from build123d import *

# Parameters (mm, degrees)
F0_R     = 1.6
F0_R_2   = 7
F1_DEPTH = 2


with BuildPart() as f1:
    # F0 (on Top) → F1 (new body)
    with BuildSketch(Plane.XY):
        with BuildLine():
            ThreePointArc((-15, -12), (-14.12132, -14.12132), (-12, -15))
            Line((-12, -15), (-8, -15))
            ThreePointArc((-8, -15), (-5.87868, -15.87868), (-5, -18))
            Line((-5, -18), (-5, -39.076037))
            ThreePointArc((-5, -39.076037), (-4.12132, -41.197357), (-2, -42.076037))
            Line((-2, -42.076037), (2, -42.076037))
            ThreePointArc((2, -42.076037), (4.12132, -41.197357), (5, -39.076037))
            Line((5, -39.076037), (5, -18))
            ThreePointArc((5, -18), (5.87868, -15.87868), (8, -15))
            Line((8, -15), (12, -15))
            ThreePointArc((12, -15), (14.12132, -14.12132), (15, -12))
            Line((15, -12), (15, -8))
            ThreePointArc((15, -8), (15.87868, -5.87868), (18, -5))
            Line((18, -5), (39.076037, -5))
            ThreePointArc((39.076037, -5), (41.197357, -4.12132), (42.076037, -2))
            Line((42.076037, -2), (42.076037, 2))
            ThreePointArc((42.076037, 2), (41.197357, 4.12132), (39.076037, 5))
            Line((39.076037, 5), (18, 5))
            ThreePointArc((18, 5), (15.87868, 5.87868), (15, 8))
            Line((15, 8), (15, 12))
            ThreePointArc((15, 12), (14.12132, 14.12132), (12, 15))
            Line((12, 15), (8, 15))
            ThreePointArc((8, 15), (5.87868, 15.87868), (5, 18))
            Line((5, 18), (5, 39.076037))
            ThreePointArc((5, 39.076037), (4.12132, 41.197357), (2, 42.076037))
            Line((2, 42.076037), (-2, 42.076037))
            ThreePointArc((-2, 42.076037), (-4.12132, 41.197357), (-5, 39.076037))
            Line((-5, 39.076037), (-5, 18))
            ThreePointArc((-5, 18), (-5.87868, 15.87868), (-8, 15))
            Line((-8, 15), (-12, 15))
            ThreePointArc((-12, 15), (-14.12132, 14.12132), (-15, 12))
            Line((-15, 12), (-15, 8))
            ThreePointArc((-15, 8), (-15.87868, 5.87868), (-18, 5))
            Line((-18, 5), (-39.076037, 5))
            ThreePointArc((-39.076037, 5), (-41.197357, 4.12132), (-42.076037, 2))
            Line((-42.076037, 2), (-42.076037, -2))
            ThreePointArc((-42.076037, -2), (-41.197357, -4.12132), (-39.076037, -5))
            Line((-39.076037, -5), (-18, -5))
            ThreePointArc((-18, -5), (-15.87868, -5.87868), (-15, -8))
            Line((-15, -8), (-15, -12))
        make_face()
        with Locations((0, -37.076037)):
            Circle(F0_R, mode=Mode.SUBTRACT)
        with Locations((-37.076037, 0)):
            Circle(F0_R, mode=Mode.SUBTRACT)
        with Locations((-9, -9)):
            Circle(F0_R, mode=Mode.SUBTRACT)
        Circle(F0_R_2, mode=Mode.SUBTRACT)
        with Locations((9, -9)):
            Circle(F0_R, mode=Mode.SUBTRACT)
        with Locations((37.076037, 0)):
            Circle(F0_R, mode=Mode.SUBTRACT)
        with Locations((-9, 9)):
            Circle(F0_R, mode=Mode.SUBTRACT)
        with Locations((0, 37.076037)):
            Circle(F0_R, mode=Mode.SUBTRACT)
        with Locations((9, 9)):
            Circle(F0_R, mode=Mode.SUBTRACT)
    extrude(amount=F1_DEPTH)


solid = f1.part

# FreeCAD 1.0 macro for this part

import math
import FreeCAD as App
import Part
import Sketcher
from FreeCAD import Vector

doc = App.newDocument("Part")
body = doc.addObject("PartDesign::Body", "Body")

# Sketch on XY plane
sketch1 = body.newObject("Sketcher::SketchObject", "Sketch")
sketch1.AttachmentSupport = (doc.getObject("XY_Plane"), [""])
sketch1.MapMode = "FlatFace"
sketch1.addGeometry([
    Part.ArcOfCircle(Part.Circle(Vector(-12, -12, 0), Vector(0, 0, 1), 3), math.radians(-180), math.radians(-90)),  # 0
    Part.LineSegment(Vector(-12, -15, 0), Vector(-8, -15, 0)),  # 1
    Part.ArcOfCircle(Part.Circle(Vector(-8, -18, 0), Vector(0, 0, 1), 3), math.radians(0), math.radians(90)),  # 2
    Part.LineSegment(Vector(-5, -18, 0), Vector(-5, -39.1, 0)),  # 3
    Part.ArcOfCircle(Part.Circle(Vector(-2, -39.1, 0), Vector(0, 0, 1), 3), math.radians(-180), math.radians(-90)),  # 4
    Part.LineSegment(Vector(-2, -42.1, 0), Vector(2, -42.1, 0)),  # 5
    Part.ArcOfCircle(Part.Circle(Vector(2, -39.1, 0), Vector(0, 0, 1), 3), math.radians(-90), math.radians(0)),  # 6
    Part.LineSegment(Vector(5, -39.1, 0), Vector(5, -18, 0)),  # 7
    Part.ArcOfCircle(Part.Circle(Vector(8, -18, 0), Vector(0, 0, 1), 3), math.radians(90), math.radians(180)),  # 8
    Part.LineSegment(Vector(8, -15, 0), Vector(12, -15, 0)),  # 9
    Part.ArcOfCircle(Part.Circle(Vector(12, -12, 0), Vector(0, 0, 1), 3), math.radians(-90), math.radians(0)),  # 10
    Part.LineSegment(Vector(15, -12, 0), Vector(15, -8, 0)),  # 11
    Part.ArcOfCircle(Part.Circle(Vector(18, -8, 0), Vector(0, 0, 1), 3), math.radians(90), math.radians(180)),  # 12
    Part.LineSegment(Vector(18, -5, 0), Vector(39.1, -5, 0)),  # 13
    Part.ArcOfCircle(Part.Circle(Vector(39.1, -2, 0), Vector(0, 0, 1), 3), math.radians(-90), math.radians(0)),  # 14
    Part.LineSegment(Vector(42.1, -2, 0), Vector(42.1, 2, 0)),  # 15
    Part.ArcOfCircle(Part.Circle(Vector(39.1, 2, 0), Vector(0, 0, 1), 3), math.radians(0), math.radians(90)),  # 16
    Part.LineSegment(Vector(39.1, 5, 0), Vector(18, 5, 0)),  # 17
    Part.ArcOfCircle(Part.Circle(Vector(18, 8, 0), Vector(0, 0, 1), 3), math.radians(-180), math.radians(-90)),  # 18
    Part.LineSegment(Vector(15, 8, 0), Vector(15, 12, 0)),  # 19
    Part.ArcOfCircle(Part.Circle(Vector(12, 12, 0), Vector(0, 0, 1), 3), math.radians(0), math.radians(90)),  # 20
    Part.LineSegment(Vector(12, 15, 0), Vector(8, 15, 0)),  # 21
    Part.ArcOfCircle(Part.Circle(Vector(8, 18, 0), Vector(0, 0, 1), 3), math.radians(-180), math.radians(-90)),  # 22
    Part.LineSegment(Vector(5, 18, 0), Vector(5, 39.1, 0)),  # 23
    Part.ArcOfCircle(Part.Circle(Vector(2, 39.1, 0), Vector(0, 0, 1), 3), math.radians(0), math.radians(90)),  # 24
    Part.LineSegment(Vector(2, 42.1, 0), Vector(-2, 42.1, 0)),  # 25
    Part.ArcOfCircle(Part.Circle(Vector(-2, 39.1, 0), Vector(0, 0, 1), 3), math.radians(90), math.radians(180)),  # 26
    Part.LineSegment(Vector(-5, 39.1, 0), Vector(-5, 18, 0)),  # 27
    Part.ArcOfCircle(Part.Circle(Vector(-8, 18, 0), Vector(0, 0, 1), 3), math.radians(-90), math.radians(0)),  # 28
    Part.LineSegment(Vector(-8, 15, 0), Vector(-12, 15, 0)),  # 29
    Part.ArcOfCircle(Part.Circle(Vector(-12, 12, 0), Vector(0, 0, 1), 3), math.radians(90), math.radians(180)),  # 30
    Part.LineSegment(Vector(-15, 12, 0), Vector(-15, 8, 0)),  # 31
    Part.ArcOfCircle(Part.Circle(Vector(-18, 8, 0), Vector(0, 0, 1), 3), math.radians(-90), math.radians(0)),  # 32
    Part.LineSegment(Vector(-18, 5, 0), Vector(-39.1, 5, 0)),  # 33
    Part.ArcOfCircle(Part.Circle(Vector(-39.1, 2, 0), Vector(0, 0, 1), 3), math.radians(90), math.radians(180)),  # 34
    Part.LineSegment(Vector(-42.1, 2, 0), Vector(-42.1, -2, 0)),  # 35
    Part.ArcOfCircle(Part.Circle(Vector(-39.1, -2, 0), Vector(0, 0, 1), 3), math.radians(-180), math.radians(-90)),  # 36
    Part.LineSegment(Vector(-39.1, -5, 0), Vector(-18, -5, 0)),  # 37
    Part.ArcOfCircle(Part.Circle(Vector(-18, -8, 0), Vector(0, 0, 1), 3), math.radians(0), math.radians(90)),  # 38
    Part.LineSegment(Vector(-15, -8, 0), Vector(-15, -12, 0)),  # 39
    Part.Circle(Vector(-9, -9, 0), Vector(0, 0, 1), 1.6),  # 40
    Part.Circle(Vector(0, -37.1, 0), Vector(0, 0, 1), 1.6),  # 41
    Part.Circle(Vector(9, -9, 0), Vector(0, 0, 1), 1.6),  # 42
    Part.Circle(Vector(-37.1, 0, 0), Vector(0, 0, 1), 1.6),  # 43
    Part.Circle(Vector(-9, 9, 0), Vector(0, 0, 1), 1.6),  # 44
    Part.Circle(Vector(0, 0, 0), Vector(0, 0, 1), 7),  # 45
    Part.Circle(Vector(9, 9, 0), Vector(0, 0, 1), 1.6),  # 46
    Part.Circle(Vector(37.1, 0, 0), Vector(0, 0, 1), 1.6),  # 47
    Part.Circle(Vector(0, 37.1, 0), Vector(0, 0, 1), 1.6),  # 48
], False)
sketch1.addConstraint([
    Sketcher.Constraint("Tangent", 0, 2, 1, 1),
    Sketcher.Constraint("Tangent", 1, 2, 2, 2),
    Sketcher.Constraint("Tangent", 2, 1, 3, 1),
    Sketcher.Constraint("Tangent", 3, 2, 4, 1),
    Sketcher.Constraint("Tangent", 4, 2, 5, 1),
    Sketcher.Constraint("Tangent", 5, 2, 6, 1),
    Sketcher.Constraint("Tangent", 6, 2, 7, 1),
    Sketcher.Constraint("Tangent", 7, 2, 8, 2),
    Sketcher.Constraint("Tangent", 8, 1, 9, 1),
    Sketcher.Constraint("Tangent", 9, 2, 10, 1),
    Sketcher.Constraint("Tangent", 10, 2, 11, 1),
    Sketcher.Constraint("Tangent", 11, 2, 12, 2),
    Sketcher.Constraint("Tangent", 12, 1, 13, 1),
    Sketcher.Constraint("Tangent", 13, 2, 14, 1),
    Sketcher.Constraint("Tangent", 14, 2, 15, 1),
    Sketcher.Constraint("Tangent", 15, 2, 16, 1),
    Sketcher.Constraint("Tangent", 16, 2, 17, 1),
    Sketcher.Constraint("Tangent", 17, 2, 18, 2),
    Sketcher.Constraint("Tangent", 18, 1, 19, 1),
    Sketcher.Constraint("Tangent", 19, 2, 20, 1),
    Sketcher.Constraint("Tangent", 20, 2, 21, 1),
    Sketcher.Constraint("Tangent", 21, 2, 22, 2),
    Sketcher.Constraint("Tangent", 22, 1, 23, 1),
    Sketcher.Constraint("Tangent", 23, 2, 24, 1),
    Sketcher.Constraint("Tangent", 24, 2, 25, 1),
    Sketcher.Constraint("Tangent", 25, 2, 26, 1),
    Sketcher.Constraint("Tangent", 26, 2, 27, 1),
    Sketcher.Constraint("Tangent", 27, 2, 28, 2),
    Sketcher.Constraint("Tangent", 28, 1, 29, 1),
    Sketcher.Constraint("Tangent", 29, 2, 30, 1),
    Sketcher.Constraint("Tangent", 30, 2, 31, 1),
    Sketcher.Constraint("Tangent", 31, 2, 32, 2),
    Sketcher.Constraint("Tangent", 32, 1, 33, 1),
    Sketcher.Constraint("Tangent", 33, 2, 34, 1),
    Sketcher.Constraint("Tangent", 34, 2, 35, 1),
    Sketcher.Constraint("Tangent", 35, 2, 36, 1),
    Sketcher.Constraint("Tangent", 36, 2, 37, 1),
    Sketcher.Constraint("Tangent", 37, 2, 38, 2),
    Sketcher.Constraint("Tangent", 38, 1, 39, 1),
    Sketcher.Constraint("Tangent", 39, 2, 0, 1),
    Sketcher.Constraint("Horizontal", 1),
    Sketcher.Constraint("Vertical", 3),
    Sketcher.Constraint("Horizontal", 5),
    Sketcher.Constraint("Vertical", 7),
    Sketcher.Constraint("Horizontal", 9),
    Sketcher.Constraint("Vertical", 11),
    Sketcher.Constraint("Horizontal", 13),
    Sketcher.Constraint("Vertical", 15),
    Sketcher.Constraint("Horizontal", 17),
    Sketcher.Constraint("Vertical", 19),
    Sketcher.Constraint("Horizontal", 21),
    Sketcher.Constraint("Vertical", 23),
    Sketcher.Constraint("Horizontal", 25),
    Sketcher.Constraint("Vertical", 27),
    Sketcher.Constraint("Horizontal", 29),
    Sketcher.Constraint("Vertical", 31),
    Sketcher.Constraint("Horizontal", 33),
    Sketcher.Constraint("Vertical", 35),
    Sketcher.Constraint("Horizontal", 37),
    Sketcher.Constraint("Vertical", 39),
    Sketcher.Constraint("Coincident", 45, 3, -1, 1),
    Sketcher.Constraint("Equal", 0, 2),
    Sketcher.Constraint("Equal", 2, 4),
    Sketcher.Constraint("Equal", 4, 6),
    Sketcher.Constraint("Equal", 6, 8),
    Sketcher.Constraint("Equal", 8, 10),
    Sketcher.Constraint("Equal", 10, 12),
    Sketcher.Constraint("Equal", 12, 14),
    Sketcher.Constraint("Equal", 14, 16),
    Sketcher.Constraint("Equal", 16, 18),
    Sketcher.Constraint("Equal", 18, 20),
    Sketcher.Constraint("Equal", 20, 22),
    Sketcher.Constraint("Equal", 22, 24),
    Sketcher.Constraint("Equal", 24, 26),
    Sketcher.Constraint("Equal", 26, 28),
    Sketcher.Constraint("Equal", 28, 30),
    Sketcher.Constraint("Equal", 30, 32),
    Sketcher.Constraint("Equal", 32, 34),
    Sketcher.Constraint("Equal", 34, 36),
    Sketcher.Constraint("Equal", 36, 38),
    Sketcher.Constraint("Equal", 40, 41),
    Sketcher.Constraint("Equal", 41, 42),
    Sketcher.Constraint("Equal", 42, 43),
    Sketcher.Constraint("Equal", 43, 44),
    Sketcher.Constraint("Equal", 44, 46),
    Sketcher.Constraint("Equal", 46, 47),
    Sketcher.Constraint("Equal", 47, 48),
    Sketcher.Constraint("Symmetric", 0, 3, 20, 3, -1, 1),
    Sketcher.Constraint("Symmetric", 4, 3, 24, 3, -1, 1),
    Sketcher.Constraint("Symmetric", 8, 3, 28, 3, -1, 1),
    Sketcher.Constraint("Symmetric", 12, 3, 32, 3, -1, 1),
    Sketcher.Constraint("Symmetric", 16, 3, 36, 3, -1, 1),
    Sketcher.Constraint("Symmetric", 42, 3, 44, 3, -1, 1),
    Sketcher.Constraint("Symmetric", 40, 3, 46, 3, -1, 1),
    Sketcher.Constraint("Symmetric", 43, 3, 47, 3, -1, 1),
    Sketcher.Constraint("Symmetric", 41, 3, 48, 3, -1, 1),
    Sketcher.Constraint("Symmetric", 2, 3, 8, 3, -2),
    Sketcher.Constraint("Symmetric", 18, 3, 32, 3, -2),
    Sketcher.Constraint("Symmetric", 40, 3, 42, 3, -2),
    Sketcher.Constraint("PointOnObject", 41, 3, -2),
    Sketcher.Constraint("PointOnObject", 43, 3, -1),
    Sketcher.Constraint("Equal", 1, 5),
    Sketcher.Constraint("Equal", 37, 3),
    Sketcher.Constraint("Equal", 29, 11),
    Sketcher.Constraint("Equal", 11, 15),
    Sketcher.Constraint("Diameter", 45, 14.0),
    Sketcher.Constraint("Radius", 0, 3.000001),
    Sketcher.Constraint("Diameter", 40, 3.2),
    Sketcher.Constraint("DistanceX", 1, 1, 1, 2, 4.0),
    Sketcher.Constraint("DistanceX", 40, 3, -1, 1, 9.0),
    Sketcher.Constraint("DistanceY", 40, 3, -1, 1, 9.0),
    Sketcher.Constraint("DistanceX", 13, 1, 13, 2, 21.076037),
    Sketcher.Constraint("DistanceY", 41, 3, -1, 1, 37.076037),
    Sketcher.Constraint("DistanceX", 43, 3, -1, 1, 37.076037),
])
pad1 = body.newObject("PartDesign::Pad", "Pad")
pad1.Profile = sketch1
pad1.Length = 2

doc.recompute()
